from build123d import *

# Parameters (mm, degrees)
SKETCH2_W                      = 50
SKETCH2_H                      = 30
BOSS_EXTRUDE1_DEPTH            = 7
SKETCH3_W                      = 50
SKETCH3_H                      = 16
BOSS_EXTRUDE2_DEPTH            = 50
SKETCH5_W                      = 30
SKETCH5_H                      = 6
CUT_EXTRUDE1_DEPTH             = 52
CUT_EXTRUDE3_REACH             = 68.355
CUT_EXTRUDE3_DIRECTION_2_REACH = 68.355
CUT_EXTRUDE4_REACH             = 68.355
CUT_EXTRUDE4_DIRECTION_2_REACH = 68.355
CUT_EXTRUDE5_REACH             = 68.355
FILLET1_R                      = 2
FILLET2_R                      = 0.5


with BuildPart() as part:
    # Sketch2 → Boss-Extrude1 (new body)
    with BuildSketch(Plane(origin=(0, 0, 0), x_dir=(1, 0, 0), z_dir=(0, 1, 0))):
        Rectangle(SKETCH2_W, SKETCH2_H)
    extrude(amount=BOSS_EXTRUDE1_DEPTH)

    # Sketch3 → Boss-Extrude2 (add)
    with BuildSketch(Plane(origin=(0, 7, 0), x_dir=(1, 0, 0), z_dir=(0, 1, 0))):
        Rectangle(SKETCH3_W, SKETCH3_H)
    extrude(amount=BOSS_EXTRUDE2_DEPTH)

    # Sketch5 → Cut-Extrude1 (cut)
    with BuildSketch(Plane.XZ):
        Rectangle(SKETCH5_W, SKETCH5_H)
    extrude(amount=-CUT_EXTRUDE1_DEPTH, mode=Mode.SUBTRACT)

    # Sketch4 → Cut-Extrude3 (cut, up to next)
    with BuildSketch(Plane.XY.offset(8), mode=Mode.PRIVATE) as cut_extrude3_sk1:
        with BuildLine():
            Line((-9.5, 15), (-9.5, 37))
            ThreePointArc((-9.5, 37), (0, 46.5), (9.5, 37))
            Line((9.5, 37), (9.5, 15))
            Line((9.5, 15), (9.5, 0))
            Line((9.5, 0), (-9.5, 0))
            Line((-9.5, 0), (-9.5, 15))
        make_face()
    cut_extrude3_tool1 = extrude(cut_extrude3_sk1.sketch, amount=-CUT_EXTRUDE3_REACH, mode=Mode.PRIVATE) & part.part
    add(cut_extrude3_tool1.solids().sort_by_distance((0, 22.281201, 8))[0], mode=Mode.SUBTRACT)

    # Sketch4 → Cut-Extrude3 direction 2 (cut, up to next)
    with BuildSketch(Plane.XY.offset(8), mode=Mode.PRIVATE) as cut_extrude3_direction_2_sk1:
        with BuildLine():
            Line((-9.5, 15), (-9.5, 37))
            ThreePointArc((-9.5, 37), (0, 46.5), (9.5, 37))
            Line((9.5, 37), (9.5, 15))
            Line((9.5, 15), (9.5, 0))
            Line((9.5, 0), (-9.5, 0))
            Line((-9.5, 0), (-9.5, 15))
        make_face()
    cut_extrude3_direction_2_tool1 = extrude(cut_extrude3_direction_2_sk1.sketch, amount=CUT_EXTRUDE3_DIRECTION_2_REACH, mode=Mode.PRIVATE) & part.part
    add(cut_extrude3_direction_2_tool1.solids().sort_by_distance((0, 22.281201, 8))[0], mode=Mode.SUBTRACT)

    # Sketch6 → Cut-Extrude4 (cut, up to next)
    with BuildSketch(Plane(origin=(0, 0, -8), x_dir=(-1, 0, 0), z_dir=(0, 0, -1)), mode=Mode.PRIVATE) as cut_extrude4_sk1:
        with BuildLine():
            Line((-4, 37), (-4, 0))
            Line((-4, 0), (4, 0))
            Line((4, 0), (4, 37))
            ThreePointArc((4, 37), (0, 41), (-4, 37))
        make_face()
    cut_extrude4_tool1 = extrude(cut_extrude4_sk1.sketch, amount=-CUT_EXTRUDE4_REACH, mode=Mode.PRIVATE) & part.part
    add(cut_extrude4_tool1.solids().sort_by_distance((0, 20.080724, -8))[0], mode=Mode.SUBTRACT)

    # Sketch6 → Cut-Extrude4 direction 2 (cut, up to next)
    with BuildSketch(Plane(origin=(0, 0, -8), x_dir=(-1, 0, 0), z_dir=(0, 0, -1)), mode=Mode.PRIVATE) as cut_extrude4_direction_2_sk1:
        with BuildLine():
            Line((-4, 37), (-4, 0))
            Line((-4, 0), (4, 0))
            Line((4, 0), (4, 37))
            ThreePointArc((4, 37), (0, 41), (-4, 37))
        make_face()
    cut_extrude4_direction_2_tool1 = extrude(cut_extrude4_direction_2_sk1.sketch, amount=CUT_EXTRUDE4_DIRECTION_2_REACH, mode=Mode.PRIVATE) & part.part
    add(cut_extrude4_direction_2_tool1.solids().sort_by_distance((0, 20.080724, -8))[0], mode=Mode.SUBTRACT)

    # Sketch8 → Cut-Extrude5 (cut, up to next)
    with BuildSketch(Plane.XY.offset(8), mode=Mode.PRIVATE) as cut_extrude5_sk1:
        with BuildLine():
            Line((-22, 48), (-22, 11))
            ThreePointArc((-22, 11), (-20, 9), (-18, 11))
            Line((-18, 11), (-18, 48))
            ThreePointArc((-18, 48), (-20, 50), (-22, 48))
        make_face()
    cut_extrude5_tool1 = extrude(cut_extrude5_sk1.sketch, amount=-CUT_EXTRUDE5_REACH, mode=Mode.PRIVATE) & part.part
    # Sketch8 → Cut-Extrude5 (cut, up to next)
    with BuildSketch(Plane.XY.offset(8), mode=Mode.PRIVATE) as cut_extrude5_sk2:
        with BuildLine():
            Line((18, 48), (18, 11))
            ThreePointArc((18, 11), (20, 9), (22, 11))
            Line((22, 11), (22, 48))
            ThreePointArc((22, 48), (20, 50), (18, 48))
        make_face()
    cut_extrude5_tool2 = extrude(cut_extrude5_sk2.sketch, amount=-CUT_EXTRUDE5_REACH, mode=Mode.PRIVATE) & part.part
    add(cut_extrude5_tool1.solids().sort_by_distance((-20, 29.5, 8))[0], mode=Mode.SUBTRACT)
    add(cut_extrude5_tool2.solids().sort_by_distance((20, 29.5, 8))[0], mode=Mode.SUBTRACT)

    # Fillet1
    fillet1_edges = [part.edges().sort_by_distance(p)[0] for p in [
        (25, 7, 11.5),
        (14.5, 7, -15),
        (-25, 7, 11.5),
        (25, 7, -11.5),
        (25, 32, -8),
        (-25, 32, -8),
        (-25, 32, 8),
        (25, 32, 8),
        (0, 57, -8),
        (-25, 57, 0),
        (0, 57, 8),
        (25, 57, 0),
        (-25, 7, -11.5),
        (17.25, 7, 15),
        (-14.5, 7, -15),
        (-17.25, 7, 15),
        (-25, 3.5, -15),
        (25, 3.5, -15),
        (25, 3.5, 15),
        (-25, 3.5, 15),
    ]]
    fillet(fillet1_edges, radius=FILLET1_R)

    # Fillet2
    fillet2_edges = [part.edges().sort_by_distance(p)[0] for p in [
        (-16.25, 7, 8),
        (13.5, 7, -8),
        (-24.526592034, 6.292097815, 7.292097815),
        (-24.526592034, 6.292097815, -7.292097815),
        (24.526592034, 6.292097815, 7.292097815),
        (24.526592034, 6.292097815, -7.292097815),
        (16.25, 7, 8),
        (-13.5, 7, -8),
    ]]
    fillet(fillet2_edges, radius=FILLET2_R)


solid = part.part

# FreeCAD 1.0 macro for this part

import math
import FreeCAD as App
import Part
import Sketcher

V = App.Vector


def edges_at(feature, points):
    """Names of the edges that pass closest to the given points."""
    edges = feature.Shape.Edges
    near = lambda p: min(range(len(edges)), key=lambda i: edges[i].distToShape(Part.Vertex(*p))[0])
    return sorted({f"Edge{near(p) + 1}" for p in points})


def add_polygon(sketch, points):
    """Adds a closed chain of lines whose ends are joined by coincident constraints."""
    first, n = sketch.GeometryCount, len(points)
    for a, b in zip(points, points[1:] + points[:1]):
        sketch.addGeometry(Part.LineSegment(App.Vector(*a, 0), App.Vector(*b, 0)), False)
    for i in range(n):
        sketch.addConstraint(Sketcher.Constraint("Coincident", first + i, 2, first + (i + 1) % n, 1))

doc = App.newDocument("Part")
body = doc.addObject("PartDesign::Body", "Body")

sketch1 = body.newObject("Sketcher::SketchObject", "Sketch")
sketch1.AttachmentSupport = (doc.getObject("XZ_Plane"), [""])
sketch1.MapMode = "FlatFace"
add_polygon(sketch1, [(-25, -15), (-25, 15), (25, 15), (25, -15)])
sketch1.addConstraint([
    Sketcher.Constraint("Vertical", 0),
    Sketcher.Constraint("Horizontal", 1),
    Sketcher.Constraint("Vertical", 2),
    Sketcher.Constraint("Horizontal", 3),
    Sketcher.Constraint("Symmetric", 0, 2, 2, 2, -1, 1),
    Sketcher.Constraint("DistanceX", 1, 1, 1, 2, 50.0),
    Sketcher.Constraint("DistanceY", 0, 1, 0, 2, 30.0),
])
pad1 = body.newObject("PartDesign::Pad", "Pad")
pad1.Profile = sketch1
pad1.Length = 7
pad1.Reversed = True

sketch2 = body.newObject("Sketcher::SketchObject", "Sketch001")
sketch2.AttachmentSupport = (doc.getObject("XZ_Plane"), [""])
sketch2.MapMode = "FlatFace"
sketch2.AttachmentOffset = App.Placement(V(0, 0, -7), App.Rotation())
add_polygon(sketch2, [(-25, -8), (-25, 8), (25, 8), (25, -8)])
sketch2.addConstraint([
    Sketcher.Constraint("Vertical", 0),
    Sketcher.Constraint("Horizontal", 1),
    Sketcher.Constraint("Vertical", 2),
    Sketcher.Constraint("Horizontal", 3),
    Sketcher.Constraint("Symmetric", 0, 2, 2, 2, -1, 1),
    Sketcher.Constraint("DistanceX", 1, 1, 1, 2, 50.0),
    Sketcher.Constraint("DistanceY", 0, 1, 0, 2, 16.0),
])
pad2 = body.newObject("PartDesign::Pad", "Pad001")
pad2.Profile = sketch2
pad2.Length = 50
pad2.Reversed = True

sketch3 = body.newObject("Sketcher::SketchObject", "Sketch002")
sketch3.AttachmentSupport = (doc.getObject("XZ_Plane"), [""])
sketch3.MapMode = "FlatFace"
add_polygon(sketch3, [(-15, 3), (-15, -3), (15, -3), (15, 3)])
sketch3.addConstraint([
    Sketcher.Constraint("Vertical", 0),
    Sketcher.Constraint("Horizontal", 1),
    Sketcher.Constraint("Vertical", 2),
    Sketcher.Constraint("Horizontal", 3),
    Sketcher.Constraint("Symmetric", 0, 2, 2, 2, -1, 1),
    Sketcher.Constraint("DistanceX", 1, 1, 1, 2, 30.0),
    Sketcher.Constraint("DistanceY", 0, 2, 0, 1, 6.0),
])
pocket1 = body.newObject("PartDesign::Pocket", "Pocket")
pocket1.Profile = sketch3
pocket1.Length = 52

sketch4 = body.newObject("Sketcher::SketchObject", "Sketch003")
sketch4.AttachmentSupport = (doc.getObject("XY_Plane"), [""])
sketch4.MapMode = "FlatFace"
sketch4.AttachmentOffset = App.Placement(V(0, 0, 8), App.Rotation())
sketch4.addGeometry([
    Part.ArcOfCircle(Part.Circle(V(0, 37, 0), V(0, 0, 1), 10), math.radians(0), math.radians(180)),
    Part.LineSegment(V(-10, 37, 0), V(-10, 0, 0)),
    Part.LineSegment(V(-10, 0, 0), V(10, 0, 0)),
    Part.LineSegment(V(10, 0, 0), V(10, 37, 0)),
], False)
sketch4.addConstraint([
    Sketcher.Constraint("Tangent", 0, 2, 1, 1),
    Sketcher.Constraint("Coincident", 1, 2, 2, 1),
    Sketcher.Constraint("Coincident", 2, 2, 3, 1),
    Sketcher.Constraint("Tangent", 3, 2, 0, 1),
    Sketcher.Constraint("Vertical", 1),
    Sketcher.Constraint("Horizontal", 2),
    Sketcher.Constraint("Vertical", 3),
    Sketcher.Constraint("Symmetric", 1, 2, 2, 2, -1, 1),
    Sketcher.Constraint("Radius", 0, 9.5),
    Sketcher.Constraint("DistanceY", 1, 2, 1, 1, 37.0),
])
pocket2 = body.newObject("PartDesign::Pocket", "Pocket001")
pocket2.Profile = sketch4
pocket2.Type = "UpToFirst"

sketch5 = body.newObject("Sketcher::SketchObject", "Sketch004")
sketch5.AttachmentSupport = (doc.getObject("XY_Plane"), [""])
sketch5.MapMode = "FlatFace"
sketch5.AttachmentOffset = App.Placement(V(0, 0, 8), App.Rotation())
sketch5.addGeometry([
    Part.ArcOfCircle(Part.Circle(V(0, 37, 0), V(0, 0, 1), 10), math.radians(0), math.radians(180)),
    Part.LineSegment(V(-10, 37, 0), V(-10, 0, 0)),
    Part.LineSegment(V(-10, 0, 0), V(10, 0, 0)),
    Part.LineSegment(V(10, 0, 0), V(10, 37, 0)),
], False)
sketch5.addConstraint([
    Sketcher.Constraint("Tangent", 0, 2, 1, 1),
    Sketcher.Constraint("Coincident", 1, 2, 2, 1),
    Sketcher.Constraint("Coincident", 2, 2, 3, 1),
    Sketcher.Constraint("Tangent", 3, 2, 0, 1),
    Sketcher.Constraint("Vertical", 1),
    Sketcher.Constraint("Horizontal", 2),
    Sketcher.Constraint("Vertical", 3),
    Sketcher.Constraint("Symmetric", 1, 2, 2, 2, -1, 1),
    Sketcher.Constraint("Radius", 0, 9.5),
    Sketcher.Constraint("DistanceY", 1, 2, 1, 1, 37.0),
])
pocket3 = body.newObject("PartDesign::Pocket", "Pocket002")
pocket3.Profile = sketch5
pocket3.Length = 7
pocket3.Reversed = True

sketch6 = body.newObject("Sketcher::SketchObject", "Sketch005")
sketch6.AttachmentSupport = (doc.getObject("XY_Plane"), [""])
sketch6.MapMode = "FlatFace"
sketch6.AttachmentOffset = App.Placement(V(0, 0, -8), App.Rotation())
sketch6.addGeometry([
    Part.LineSegment(V(4, 37, 0), V(4, 0, 0)),
    Part.LineSegment(V(4, 0, 0), V(-4, 0, 0)),
    Part.LineSegment(V(-4, 0, 0), V(-4, 37, 0)),
    Part.ArcOfCircle(Part.Circle(V(0, 37, 0), V(0, 0, 1), 4), math.radians(0), math.radians(180)),
], False)
sketch6.addConstraint([
    Sketcher.Constraint("Coincident", 0, 2, 1, 1),
    Sketcher.Constraint("Coincident", 1, 2, 2, 1),
    Sketcher.Constraint("Tangent", 2, 2, 3, 2),
    Sketcher.Constraint("Tangent", 3, 1, 0, 1),
    Sketcher.Constraint("Vertical", 0),
    Sketcher.Constraint("Horizontal", 1),
    Sketcher.Constraint("Vertical", 2),
    Sketcher.Constraint("Symmetric", 0, 2, 1, 2, -1, 1),
    Sketcher.Constraint("Radius", 3, 4.0),
    Sketcher.Constraint("DistanceY", 0, 2, 0, 1, 37.0),
])
pocket4 = body.newObject("PartDesign::Pocket", "Pocket003")
pocket4.Profile = sketch6
pocket4.Type = "UpToFirst"
pocket4.Reversed = True

sketch7 = body.newObject("Sketcher::SketchObject", "Sketch006")
sketch7.AttachmentSupport = (doc.getObject("XY_Plane"), [""])
sketch7.MapMode = "FlatFace"
sketch7.AttachmentOffset = App.Placement(V(0, 0, -8), App.Rotation())
sketch7.addGeometry([
    Part.LineSegment(V(4, 37, 0), V(4, 0, 0)),
    Part.LineSegment(V(4, 0, 0), V(-4, 0, 0)),
    Part.LineSegment(V(-4, 0, 0), V(-4, 37, 0)),
    Part.ArcOfCircle(Part.Circle(V(0, 37, 0), V(0, 0, 1), 4), math.radians(0), math.radians(180)),
], False)
sketch7.addConstraint([
    Sketcher.Constraint("Coincident", 0, 2, 1, 1),
    Sketcher.Constraint("Coincident", 1, 2, 2, 1),
    Sketcher.Constraint("Tangent", 2, 2, 3, 2),
    Sketcher.Constraint("Tangent", 3, 1, 0, 1),
    Sketcher.Constraint("Vertical", 0),
    Sketcher.Constraint("Horizontal", 1),
    Sketcher.Constraint("Vertical", 2),
    Sketcher.Constraint("Symmetric", 0, 2, 1, 2, -1, 1),
    Sketcher.Constraint("Radius", 3, 4.0),
    Sketcher.Constraint("DistanceY", 0, 2, 0, 1, 37.0),
])
pocket5 = body.newObject("PartDesign::Pocket", "Pocket004")
pocket5.Profile = sketch7
pocket5.Length = 7

sketch8 = body.newObject("Sketcher::SketchObject", "Sketch007")
sketch8.AttachmentSupport = (doc.getObject("XY_Plane"), [""])
sketch8.MapMode = "FlatFace"
sketch8.AttachmentOffset = App.Placement(V(0, 0, 8), App.Rotation())
sketch8.addGeometry([
    Part.LineSegment(V(-22, 48, 0), V(-22, 11, 0)),
    Part.ArcOfCircle(Part.Circle(V(-20, 11, 0), V(0, 0, 1), 2), math.radians(180), math.radians(360)),
    Part.LineSegment(V(-18, 11, 0), V(-18, 48, 0)),
    Part.ArcOfCircle(Part.Circle(V(-20, 48, 0), V(0, 0, 1), 2), math.radians(0), math.radians(180)),
], False)
sketch8.addConstraint([
    Sketcher.Constraint("Tangent", 0, 2, 1, 1),
    Sketcher.Constraint("Tangent", 1, 2, 2, 1),
    Sketcher.Constraint("Tangent", 2, 2, 3, 1),
    Sketcher.Constraint("Tangent", 3, 2, 0, 1),
    Sketcher.Constraint("Vertical", 0),
    Sketcher.Constraint("Vertical", 2),
    Sketcher.Constraint("Radius", 1, 2.0),
    Sketcher.Constraint("DistanceY", 0, 2, 0, 1, 37.0),
    Sketcher.Constraint("DistanceX", 1, 3, -1, 1, 20.0),
    Sketcher.Constraint("DistanceY", -1, 1, 1, 3, 11.0),
])
pocket6 = body.newObject("PartDesign::Pocket", "Pocket005")
pocket6.Profile = sketch8
pocket6.Type = "UpToFirst"

sketch9 = body.newObject("Sketcher::SketchObject", "Sketch008")
sketch9.AttachmentSupport = (doc.getObject("XY_Plane"), [""])
sketch9.MapMode = "FlatFace"
sketch9.AttachmentOffset = App.Placement(V(0, 0, 8), App.Rotation())
sketch9.addGeometry([
    Part.LineSegment(V(18, 48, 0), V(18, 11, 0)),
    Part.ArcOfCircle(Part.Circle(V(20, 11, 0), V(0, 0, 1), 2), math.radians(180), math.radians(360)),
    Part.LineSegment(V(22, 11, 0), V(22, 48, 0)),
    Part.ArcOfCircle(Part.Circle(V(20, 48, 0), V(0, 0, 1), 2), math.radians(0), math.radians(180)),
], False)
sketch9.addConstraint([
    Sketcher.Constraint("Tangent", 0, 2, 1, 1),
    Sketcher.Constraint("Tangent", 1, 2, 2, 1),
    Sketcher.Constraint("Tangent", 2, 2, 3, 1),
    Sketcher.Constraint("Tangent", 3, 2, 0, 1),
    Sketcher.Constraint("Vertical", 0),
    Sketcher.Constraint("Vertical", 2),
    Sketcher.Constraint("Radius", 1, 2.0),
    Sketcher.Constraint("DistanceY", 0, 2, 0, 1, 37.0),
    Sketcher.Constraint("DistanceX", -1, 1, 1, 3, 20.0),
    Sketcher.Constraint("DistanceY", -1, 1, 1, 3, 11.0),
])
pocket7 = body.newObject("PartDesign::Pocket", "Pocket006")
pocket7.Profile = sketch9
pocket7.Type = "UpToFirst"
doc.recompute()

fillet = body.newObject("PartDesign::Fillet", "Fillet")
fillet.Base = (pocket7, edges_at(pocket7, [
    (25, 7, 11.5),
    (14.5, 7, -15),
    (-25, 7, 11.5),
    (25, 7, -11.5),
    (25, 32, -8),
    (-25, 32, -8),
    (-25, 32, 8),
    (25, 32, 8),
    (0, 57, -8),
    (-25, 57, 0),
    (0, 57, 8),
    (25, 57, 0),
    (-25, 7, -11.5),
    (17.25, 7, 15),
    (-14.5, 7, -15),
    (-17.25, 7, 15),
    (-25, 3.5, -15),
    (25, 3.5, -15),
    (25, 3.5, 15),
    (-25, 3.5, 15),
]))
fillet.Radius = 2
doc.recompute()

fillet2 = body.newObject("PartDesign::Fillet", "Fillet001")
fillet2.Base = (fillet, edges_at(fillet, [
    (-16.25, 7, 8),
    (13.5, 7, -8),
    (-24.527, 6.292, 7.292),
    (-24.527, 6.292, -7.292),
    (24.527, 6.292, 7.292),
    (24.527, 6.292, -7.292),
    (16.25, 7, 8),
    (-13.5, 7, -8),
]))
fillet2.Radius = 0.5

doc.recompute()
